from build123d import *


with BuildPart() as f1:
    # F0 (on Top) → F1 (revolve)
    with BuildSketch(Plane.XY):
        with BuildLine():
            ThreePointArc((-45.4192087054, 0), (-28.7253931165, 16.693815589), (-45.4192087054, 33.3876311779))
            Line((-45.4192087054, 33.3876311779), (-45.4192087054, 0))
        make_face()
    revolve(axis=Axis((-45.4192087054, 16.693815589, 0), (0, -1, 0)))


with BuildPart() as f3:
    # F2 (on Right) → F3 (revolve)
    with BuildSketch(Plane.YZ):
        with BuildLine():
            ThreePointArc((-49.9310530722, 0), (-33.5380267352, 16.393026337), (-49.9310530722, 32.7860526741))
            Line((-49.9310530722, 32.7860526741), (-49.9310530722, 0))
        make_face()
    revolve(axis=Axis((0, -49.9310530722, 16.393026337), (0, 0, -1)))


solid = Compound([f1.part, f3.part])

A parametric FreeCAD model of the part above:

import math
import FreeCAD as App
import Part
import Sketcher

doc = App.newDocument("Part")
params = doc.addObject("Spreadsheet::Sheet", "Params")
for row, (alias, value) in enumerate([
    ("revolution_angle", "360 deg"),
    ("revolution2_angle", "360 deg"),
], start=1):
    params.set(f"A{row}", alias)
    params.set(f"B{row}", "=" + value)
    params.setAlias(f"B{row}", alias)

body = doc.addObject("PartDesign::Body", "Body")

# Sketch on XY plane
sketch1 = body.newObject("Sketcher::SketchObject", "Sketch")
sketch1.AttachmentSupport = (doc.getObject("XY_Plane"), [""])
sketch1.MapMode = "FlatFace"
sketch1.addGeometry(Part.ArcOfCircle(Part.Circle(App.Vector(-45, 17, 0), App.Vector(0, 0, 1), 17), math.radians(-90), math.radians(90)), False)
sketch1.addGeometry(Part.LineSegment(App.Vector(-45, 33, 0), App.Vector(-45, 0, 0)), False)
sketch1.addGeometry(Part.LineSegment(App.Vector(-45, 33, 0), App.Vector(-45, 0, 0)), True)  # axis
sketch1.addConstraint(Sketcher.Constraint("Coincident", 0, 1, 1, 2))
sketch1.addConstraint(Sketcher.Constraint("Coincident", 1, 1, 0, 2))
sketch1.addConstraint(Sketcher.Constraint("Vertical", 1))
sketch1.addConstraint(Sketcher.Constraint("Vertical", 2))
sketch1.addConstraint(Sketcher.Constraint("Coincident", 2, 1, 1, 1))
sketch1.addConstraint(Sketcher.Constraint("PointOnObject", 0, 1, -1))
sketch1.addConstraint(Sketcher.Constraint("PointOnObject", 2, 2, -1))
sketch1.addConstraint(Sketcher.Constraint("Radius", 0, 16.693816))
sketch1.addConstraint(Sketcher.Constraint("DistanceX", 0, 3, -1, 1, 45.419209))
sketch1.addConstraint(Sketcher.Constraint("DistanceX", 0, 1, -1, 1, 45.419209))
revolution = body.newObject("PartDesign::Revolution", "Revolution")
revolution.Profile = sketch1
revolution.ReferenceAxis = (sketch1, ["Axis0"])
revolution.setExpression("Angle", "Params.revolution_angle")
body2 = doc.addObject("PartDesign::Body", "Body001")

# Sketch on YZ plane
sketch2 = body2.newObject("Sketcher::SketchObject", "Sketch001")
sketch2.AttachmentSupport = (doc.getObject("YZ_Plane001"), [""])
sketch2.MapMode = "FlatFace"
sketch2.addGeometry(Part.ArcOfCircle(Part.Circle(App.Vector(-50, 16, 0), App.Vector(0, 0, 1), 16), math.radians(-90), math.radians(90)), False)
sketch2.addGeometry(Part.LineSegment(App.Vector(-50, 33, 0), App.Vector(-50, 0, 0)), False)
sketch2.addGeometry(Part.LineSegment(App.Vector(-50, 33, 0), App.Vector(-50, 0, 0)), True)  # axis
sketch2.addConstraint(Sketcher.Constraint("Coincident", 0, 1, 1, 2))
sketch2.addConstraint(Sketcher.Constraint("Coincident", 1, 1, 0, 2))
sketch2.addConstraint(Sketcher.Constraint("Vertical", 1))
sketch2.addConstraint(Sketcher.Constraint("Vertical", 2))
sketch2.addConstraint(Sketcher.Constraint("Coincident", 2, 1, 1, 1))
sketch2.addConstraint(Sketcher.Constraint("PointOnObject", 0, 1, -1))
sketch2.addConstraint(Sketcher.Constraint("PointOnObject", 2, 2, -1))
sketch2.addConstraint(Sketcher.Constraint("Radius", 0, 16.393026))
sketch2.addConstraint(Sketcher.Constraint("DistanceX", 0, 3, -1, 1, 49.931053))
sketch2.addConstraint(Sketcher.Constraint("DistanceX", 0, 1, -1, 1, 49.931053))
revolution2 = body2.newObject("PartDesign::Revolution", "Revolution001")
revolution2.Profile = sketch2
revolution2.ReferenceAxis = (sketch2, ["Axis0"])
revolution2.setExpression("Angle", "Params.revolution2_angle")

doc.recompute()
